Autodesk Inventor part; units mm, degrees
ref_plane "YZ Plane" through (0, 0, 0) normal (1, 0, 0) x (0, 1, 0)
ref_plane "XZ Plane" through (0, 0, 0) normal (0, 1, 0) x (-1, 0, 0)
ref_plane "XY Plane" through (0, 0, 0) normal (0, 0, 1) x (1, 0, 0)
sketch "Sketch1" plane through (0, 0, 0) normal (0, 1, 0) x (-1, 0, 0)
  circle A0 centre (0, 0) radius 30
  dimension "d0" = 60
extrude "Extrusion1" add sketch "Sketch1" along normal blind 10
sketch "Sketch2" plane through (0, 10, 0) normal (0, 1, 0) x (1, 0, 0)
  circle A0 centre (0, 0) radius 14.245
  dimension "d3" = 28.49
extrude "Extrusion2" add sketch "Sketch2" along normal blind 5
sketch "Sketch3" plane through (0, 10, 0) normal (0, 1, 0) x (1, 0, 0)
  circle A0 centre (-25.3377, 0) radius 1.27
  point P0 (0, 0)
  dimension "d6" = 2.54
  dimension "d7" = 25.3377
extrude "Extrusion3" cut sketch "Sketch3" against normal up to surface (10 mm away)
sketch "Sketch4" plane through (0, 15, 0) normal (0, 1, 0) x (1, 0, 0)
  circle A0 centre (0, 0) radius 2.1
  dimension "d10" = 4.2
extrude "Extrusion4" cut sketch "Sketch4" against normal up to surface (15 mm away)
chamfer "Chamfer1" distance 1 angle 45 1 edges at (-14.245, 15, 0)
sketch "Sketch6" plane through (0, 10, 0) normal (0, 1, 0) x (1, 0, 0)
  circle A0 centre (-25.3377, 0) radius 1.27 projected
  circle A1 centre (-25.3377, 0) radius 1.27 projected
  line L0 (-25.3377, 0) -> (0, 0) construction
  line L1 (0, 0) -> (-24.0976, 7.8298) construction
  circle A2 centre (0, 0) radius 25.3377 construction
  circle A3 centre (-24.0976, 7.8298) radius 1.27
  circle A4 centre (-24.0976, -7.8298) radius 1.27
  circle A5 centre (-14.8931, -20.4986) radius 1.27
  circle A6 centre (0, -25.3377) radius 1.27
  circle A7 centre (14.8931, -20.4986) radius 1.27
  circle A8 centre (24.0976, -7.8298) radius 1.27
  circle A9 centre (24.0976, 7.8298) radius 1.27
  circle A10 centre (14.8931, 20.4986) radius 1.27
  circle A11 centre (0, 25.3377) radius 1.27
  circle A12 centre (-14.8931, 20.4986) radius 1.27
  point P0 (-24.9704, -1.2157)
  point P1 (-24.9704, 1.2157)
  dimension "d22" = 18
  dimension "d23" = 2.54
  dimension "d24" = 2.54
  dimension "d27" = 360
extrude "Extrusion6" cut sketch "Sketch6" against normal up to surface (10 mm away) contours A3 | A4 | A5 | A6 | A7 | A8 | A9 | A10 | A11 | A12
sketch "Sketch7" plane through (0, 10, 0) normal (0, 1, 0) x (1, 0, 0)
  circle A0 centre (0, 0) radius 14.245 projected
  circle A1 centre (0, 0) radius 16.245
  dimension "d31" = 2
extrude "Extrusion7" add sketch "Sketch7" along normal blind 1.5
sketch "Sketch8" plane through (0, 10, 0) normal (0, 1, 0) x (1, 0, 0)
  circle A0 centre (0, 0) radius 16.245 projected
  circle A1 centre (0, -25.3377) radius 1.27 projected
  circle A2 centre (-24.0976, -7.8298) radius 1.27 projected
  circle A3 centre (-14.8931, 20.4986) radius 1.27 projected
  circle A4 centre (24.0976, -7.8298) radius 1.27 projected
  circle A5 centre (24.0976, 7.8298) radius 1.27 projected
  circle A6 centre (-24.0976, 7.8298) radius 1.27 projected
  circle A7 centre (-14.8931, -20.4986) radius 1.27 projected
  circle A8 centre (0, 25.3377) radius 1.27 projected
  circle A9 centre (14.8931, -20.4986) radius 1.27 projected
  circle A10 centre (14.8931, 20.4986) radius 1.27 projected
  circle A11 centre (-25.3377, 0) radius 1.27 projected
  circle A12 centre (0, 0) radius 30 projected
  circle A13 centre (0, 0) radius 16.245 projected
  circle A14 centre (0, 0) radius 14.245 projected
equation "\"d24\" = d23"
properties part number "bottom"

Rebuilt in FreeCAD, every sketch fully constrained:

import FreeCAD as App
import Part
import Sketcher


def edges_at(feature, points):
    """Names of the edges that pass closest to the given points."""
    edges = feature.Shape.Edges
    near = lambda p: min(range(len(edges)), key=lambda i: edges[i].distToShape(Part.Vertex(*p))[0])
    return sorted({f"Edge{near(p) + 1}" for p in points})

doc = App.newDocument("Part")
body = doc.addObject("PartDesign::Body", "Body")

sketch1 = doc.addObject("Sketcher::SketchObject", "Sketch")
body.addObject(sketch1)
sketch1.AttachmentSupport = (doc.XZ_Plane, [""])
sketch1.MapMode = "FlatFace"
sketch1.addGeometry(Part.Circle(App.Vector(0, 0, 0), App.Vector(0, 0, 1), 30), False)
sketch1.addConstraint(Sketcher.Constraint("Coincident", 0, 3, -1, 1))
sketch1.addConstraint(Sketcher.Constraint("Diameter", 0, 60.0))
pad1 = doc.addObject("PartDesign::Pad", "Pad")
body.addObject(pad1)
pad1.Profile = sketch1
pad1.Length = 10
pad1.Reversed = True

sketch2 = doc.addObject("Sketcher::SketchObject", "Sketch001")
body.addObject(sketch2)
sketch2.AttachmentSupport = (doc.XZ_Plane, [""])
sketch2.MapMode = "FlatFace"
sketch2.AttachmentOffset = App.Placement(App.Vector(0, 0, -10), App.Rotation())
sketch2.addGeometry(Part.Circle(App.Vector(0, 0, 0), App.Vector(0, 0, 1), 14), False)
sketch2.addConstraint(Sketcher.Constraint("Coincident", 0, 3, -1, 1))
sketch2.addConstraint(Sketcher.Constraint("Diameter", 0, 28.49))
pad2 = doc.addObject("PartDesign::Pad", "Pad001")
body.addObject(pad2)
pad2.Profile = sketch2
pad2.Length = 5
pad2.Reversed = True

sketch3 = doc.addObject("Sketcher::SketchObject", "Sketch002")
body.addObject(sketch3)
sketch3.AttachmentSupport = (doc.XZ_Plane, [""])
sketch3.MapMode = "FlatFace"
sketch3.AttachmentOffset = App.Placement(App.Vector(0, 0, -10), App.Rotation())
sketch3.addGeometry(Part.Circle(App.Vector(-25.3, 0, 0), App.Vector(0, 0, 1), 1.3), False)
sketch3.addConstraint(Sketcher.Constraint("PointOnObject", 0, 3, -1))
sketch3.addConstraint(Sketcher.Constraint("Diameter", 0, 2.54))
sketch3.addConstraint(Sketcher.Constraint("DistanceX", 0, 3, -1, 1, 25.3377))
pocket1 = doc.addObject("PartDesign::Pocket", "Pocket")
body.addObject(pocket1)
pocket1.Profile = sketch3
pocket1.Length = 10
pocket1.Reversed = True

sketch4 = doc.addObject("Sketcher::SketchObject", "Sketch003")
body.addObject(sketch4)
sketch4.AttachmentSupport = (doc.XZ_Plane, [""])
sketch4.MapMode = "FlatFace"
sketch4.AttachmentOffset = App.Placement(App.Vector(0, 0, -15), App.Rotation())
sketch4.addGeometry(Part.Circle(App.Vector(0, 0, 0), App.Vector(0, 0, 1), 2.1), False)
sketch4.addConstraint(Sketcher.Constraint("Coincident", 0, 3, -1, 1))
sketch4.addConstraint(Sketcher.Constraint("Diameter", 0, 4.2))
pocket2 = doc.addObject("PartDesign::Pocket", "Pocket001")
body.addObject(pocket2)
pocket2.Profile = sketch4
pocket2.Length = 15
pocket2.Reversed = True
doc.recompute()

chamfer = doc.addObject("PartDesign::Chamfer", "Chamfer")
body.addObject(chamfer)
chamfer.Base = (pocket2, edges_at(pocket2, [(-14.245, 15, 0)]))
chamfer.Size = 1

sketch5 = doc.addObject("Sketcher::SketchObject", "Sketch004")
body.addObject(sketch5)
sketch5.AttachmentSupport = (doc.XZ_Plane, [""])
sketch5.MapMode = "FlatFace"
sketch5.AttachmentOffset = App.Placement(App.Vector(0, 0, -10), App.Rotation())
sketch5.addGeometry(Part.Circle(App.Vector(-24.1, -7.8, 0), App.Vector(0, 0, 1), 1.3), False)
sketch5.addGeometry(Part.Circle(App.Vector(-24.1, 7.8, 0), App.Vector(0, 0, 1), 1.3), False)
sketch5.addGeometry(Part.Circle(App.Vector(-14.9, 20.5, 0), App.Vector(0, 0, 1), 1.3), False)
sketch5.addGeometry(Part.Circle(App.Vector(0, 25.3, 0), App.Vector(0, 0, 1), 1.3), False)
sketch5.addGeometry(Part.Circle(App.Vector(14.9, 20.5, 0), App.Vector(0, 0, 1), 1.3), False)
sketch5.addGeometry(Part.Circle(App.Vector(24.1, 7.8, 0), App.Vector(0, 0, 1), 1.3), False)
sketch5.addGeometry(Part.Circle(App.Vector(24.1, -7.8, 0), App.Vector(0, 0, 1), 1.3), False)
sketch5.addGeometry(Part.Circle(App.Vector(14.9, -20.5, 0), App.Vector(0, 0, 1), 1.3), False)
sketch5.addGeometry(Part.Circle(App.Vector(0, -25.3, 0), App.Vector(0, 0, 1), 1.3), False)
sketch5.addGeometry(Part.Circle(App.Vector(-14.9, -20.5, 0), App.Vector(0, 0, 1), 1.3), False)
sketch5.addConstraint(Sketcher.Constraint("Equal", 0, 1))
sketch5.addConstraint(Sketcher.Constraint("Equal", 1, 2))
sketch5.addConstraint(Sketcher.Constraint("Equal", 2, 3))
sketch5.addConstraint(Sketcher.Constraint("Equal", 3, 4))
sketch5.addConstraint(Sketcher.Constraint("Equal", 4, 5))
sketch5.addConstraint(Sketcher.Constraint("Equal", 5, 6))
sketch5.addConstraint(Sketcher.Constraint("Equal", 6, 7))
sketch5.addConstraint(Sketcher.Constraint("Equal", 7, 8))
sketch5.addConstraint(Sketcher.Constraint("Equal", 8, 9))
sketch5.addConstraint(Sketcher.Constraint("Symmetric", 0, 3, 5, 3, -1, 1))
sketch5.addConstraint(Sketcher.Constraint("Symmetric", 1, 3, 6, 3, -1, 1))
sketch5.addConstraint(Sketcher.Constraint("Symmetric", 2, 3, 7, 3, -1, 1))
sketch5.addConstraint(Sketcher.Constraint("Symmetric", 3, 3, 8, 3, -1, 1))
sketch5.addConstraint(Sketcher.Constraint("Symmetric", 4, 3, 9, 3, -1, 1))
sketch5.addConstraint(Sketcher.Constraint("Symmetric", 2, 3, 4, 3, -2))
sketch5.addConstraint(Sketcher.Constraint("Symmetric", 1, 3, 5, 3, -2))
sketch5.addConstraint(Sketcher.Constraint("PointOnObject", 3, 3, -2))
sketch5.addConstraint(Sketcher.Constraint("Diameter", 0, 2.54))
sketch5.addConstraint(Sketcher.Constraint("DistanceX", 2, 3, -1, 1, 14.893))
sketch5.addConstraint(Sketcher.Constraint("DistanceY", 2, 3, 3, 3, 4.839))
sketch5.addConstraint(Sketcher.Constraint("DistanceY", 1, 3, 3, 3, 17.508))
sketch5.addConstraint(Sketcher.Constraint("DistanceX", 0, 3, -1, 1, 24.0976))
sketch5.addConstraint(Sketcher.Constraint("DistanceY", 0, 3, -1, 1, 7.8298))
pocket3 = doc.addObject("PartDesign::Pocket", "Pocket002")
body.addObject(pocket3)
pocket3.Profile = sketch5
pocket3.Length = 10
pocket3.Reversed = True

sketch6 = doc.addObject("Sketcher::SketchObject", "Sketch005")
body.addObject(sketch6)
sketch6.AttachmentSupport = (doc.XZ_Plane, [""])
sketch6.MapMode = "FlatFace"
sketch6.AttachmentOffset = App.Placement(App.Vector(0, 0, -10), App.Rotation())
sketch6.addGeometry(Part.Circle(App.Vector(0, 0, 0), App.Vector(0, 0, 1), 16), False)
sketch6.addGeometry(Part.Circle(App.Vector(0, 0, 0), App.Vector(0, 0, 1), 14), False)
sketch6.addConstraint(Sketcher.Constraint("Coincident", 0, 3, -1, 1))
sketch6.addConstraint(Sketcher.Constraint("Coincident", 1, 3, -1, 1))
sketch6.addConstraint(Sketcher.Constraint("Diameter", 0, 32.49))
sketch6.addConstraint(Sketcher.Constraint("Diameter", 1, 28.49))
pad3 = doc.addObject("PartDesign::Pad", "Pad002")
body.addObject(pad3)
pad3.Profile = sketch6
pad3.Length = 1.5
pad3.Reversed = True

doc.recompute()
